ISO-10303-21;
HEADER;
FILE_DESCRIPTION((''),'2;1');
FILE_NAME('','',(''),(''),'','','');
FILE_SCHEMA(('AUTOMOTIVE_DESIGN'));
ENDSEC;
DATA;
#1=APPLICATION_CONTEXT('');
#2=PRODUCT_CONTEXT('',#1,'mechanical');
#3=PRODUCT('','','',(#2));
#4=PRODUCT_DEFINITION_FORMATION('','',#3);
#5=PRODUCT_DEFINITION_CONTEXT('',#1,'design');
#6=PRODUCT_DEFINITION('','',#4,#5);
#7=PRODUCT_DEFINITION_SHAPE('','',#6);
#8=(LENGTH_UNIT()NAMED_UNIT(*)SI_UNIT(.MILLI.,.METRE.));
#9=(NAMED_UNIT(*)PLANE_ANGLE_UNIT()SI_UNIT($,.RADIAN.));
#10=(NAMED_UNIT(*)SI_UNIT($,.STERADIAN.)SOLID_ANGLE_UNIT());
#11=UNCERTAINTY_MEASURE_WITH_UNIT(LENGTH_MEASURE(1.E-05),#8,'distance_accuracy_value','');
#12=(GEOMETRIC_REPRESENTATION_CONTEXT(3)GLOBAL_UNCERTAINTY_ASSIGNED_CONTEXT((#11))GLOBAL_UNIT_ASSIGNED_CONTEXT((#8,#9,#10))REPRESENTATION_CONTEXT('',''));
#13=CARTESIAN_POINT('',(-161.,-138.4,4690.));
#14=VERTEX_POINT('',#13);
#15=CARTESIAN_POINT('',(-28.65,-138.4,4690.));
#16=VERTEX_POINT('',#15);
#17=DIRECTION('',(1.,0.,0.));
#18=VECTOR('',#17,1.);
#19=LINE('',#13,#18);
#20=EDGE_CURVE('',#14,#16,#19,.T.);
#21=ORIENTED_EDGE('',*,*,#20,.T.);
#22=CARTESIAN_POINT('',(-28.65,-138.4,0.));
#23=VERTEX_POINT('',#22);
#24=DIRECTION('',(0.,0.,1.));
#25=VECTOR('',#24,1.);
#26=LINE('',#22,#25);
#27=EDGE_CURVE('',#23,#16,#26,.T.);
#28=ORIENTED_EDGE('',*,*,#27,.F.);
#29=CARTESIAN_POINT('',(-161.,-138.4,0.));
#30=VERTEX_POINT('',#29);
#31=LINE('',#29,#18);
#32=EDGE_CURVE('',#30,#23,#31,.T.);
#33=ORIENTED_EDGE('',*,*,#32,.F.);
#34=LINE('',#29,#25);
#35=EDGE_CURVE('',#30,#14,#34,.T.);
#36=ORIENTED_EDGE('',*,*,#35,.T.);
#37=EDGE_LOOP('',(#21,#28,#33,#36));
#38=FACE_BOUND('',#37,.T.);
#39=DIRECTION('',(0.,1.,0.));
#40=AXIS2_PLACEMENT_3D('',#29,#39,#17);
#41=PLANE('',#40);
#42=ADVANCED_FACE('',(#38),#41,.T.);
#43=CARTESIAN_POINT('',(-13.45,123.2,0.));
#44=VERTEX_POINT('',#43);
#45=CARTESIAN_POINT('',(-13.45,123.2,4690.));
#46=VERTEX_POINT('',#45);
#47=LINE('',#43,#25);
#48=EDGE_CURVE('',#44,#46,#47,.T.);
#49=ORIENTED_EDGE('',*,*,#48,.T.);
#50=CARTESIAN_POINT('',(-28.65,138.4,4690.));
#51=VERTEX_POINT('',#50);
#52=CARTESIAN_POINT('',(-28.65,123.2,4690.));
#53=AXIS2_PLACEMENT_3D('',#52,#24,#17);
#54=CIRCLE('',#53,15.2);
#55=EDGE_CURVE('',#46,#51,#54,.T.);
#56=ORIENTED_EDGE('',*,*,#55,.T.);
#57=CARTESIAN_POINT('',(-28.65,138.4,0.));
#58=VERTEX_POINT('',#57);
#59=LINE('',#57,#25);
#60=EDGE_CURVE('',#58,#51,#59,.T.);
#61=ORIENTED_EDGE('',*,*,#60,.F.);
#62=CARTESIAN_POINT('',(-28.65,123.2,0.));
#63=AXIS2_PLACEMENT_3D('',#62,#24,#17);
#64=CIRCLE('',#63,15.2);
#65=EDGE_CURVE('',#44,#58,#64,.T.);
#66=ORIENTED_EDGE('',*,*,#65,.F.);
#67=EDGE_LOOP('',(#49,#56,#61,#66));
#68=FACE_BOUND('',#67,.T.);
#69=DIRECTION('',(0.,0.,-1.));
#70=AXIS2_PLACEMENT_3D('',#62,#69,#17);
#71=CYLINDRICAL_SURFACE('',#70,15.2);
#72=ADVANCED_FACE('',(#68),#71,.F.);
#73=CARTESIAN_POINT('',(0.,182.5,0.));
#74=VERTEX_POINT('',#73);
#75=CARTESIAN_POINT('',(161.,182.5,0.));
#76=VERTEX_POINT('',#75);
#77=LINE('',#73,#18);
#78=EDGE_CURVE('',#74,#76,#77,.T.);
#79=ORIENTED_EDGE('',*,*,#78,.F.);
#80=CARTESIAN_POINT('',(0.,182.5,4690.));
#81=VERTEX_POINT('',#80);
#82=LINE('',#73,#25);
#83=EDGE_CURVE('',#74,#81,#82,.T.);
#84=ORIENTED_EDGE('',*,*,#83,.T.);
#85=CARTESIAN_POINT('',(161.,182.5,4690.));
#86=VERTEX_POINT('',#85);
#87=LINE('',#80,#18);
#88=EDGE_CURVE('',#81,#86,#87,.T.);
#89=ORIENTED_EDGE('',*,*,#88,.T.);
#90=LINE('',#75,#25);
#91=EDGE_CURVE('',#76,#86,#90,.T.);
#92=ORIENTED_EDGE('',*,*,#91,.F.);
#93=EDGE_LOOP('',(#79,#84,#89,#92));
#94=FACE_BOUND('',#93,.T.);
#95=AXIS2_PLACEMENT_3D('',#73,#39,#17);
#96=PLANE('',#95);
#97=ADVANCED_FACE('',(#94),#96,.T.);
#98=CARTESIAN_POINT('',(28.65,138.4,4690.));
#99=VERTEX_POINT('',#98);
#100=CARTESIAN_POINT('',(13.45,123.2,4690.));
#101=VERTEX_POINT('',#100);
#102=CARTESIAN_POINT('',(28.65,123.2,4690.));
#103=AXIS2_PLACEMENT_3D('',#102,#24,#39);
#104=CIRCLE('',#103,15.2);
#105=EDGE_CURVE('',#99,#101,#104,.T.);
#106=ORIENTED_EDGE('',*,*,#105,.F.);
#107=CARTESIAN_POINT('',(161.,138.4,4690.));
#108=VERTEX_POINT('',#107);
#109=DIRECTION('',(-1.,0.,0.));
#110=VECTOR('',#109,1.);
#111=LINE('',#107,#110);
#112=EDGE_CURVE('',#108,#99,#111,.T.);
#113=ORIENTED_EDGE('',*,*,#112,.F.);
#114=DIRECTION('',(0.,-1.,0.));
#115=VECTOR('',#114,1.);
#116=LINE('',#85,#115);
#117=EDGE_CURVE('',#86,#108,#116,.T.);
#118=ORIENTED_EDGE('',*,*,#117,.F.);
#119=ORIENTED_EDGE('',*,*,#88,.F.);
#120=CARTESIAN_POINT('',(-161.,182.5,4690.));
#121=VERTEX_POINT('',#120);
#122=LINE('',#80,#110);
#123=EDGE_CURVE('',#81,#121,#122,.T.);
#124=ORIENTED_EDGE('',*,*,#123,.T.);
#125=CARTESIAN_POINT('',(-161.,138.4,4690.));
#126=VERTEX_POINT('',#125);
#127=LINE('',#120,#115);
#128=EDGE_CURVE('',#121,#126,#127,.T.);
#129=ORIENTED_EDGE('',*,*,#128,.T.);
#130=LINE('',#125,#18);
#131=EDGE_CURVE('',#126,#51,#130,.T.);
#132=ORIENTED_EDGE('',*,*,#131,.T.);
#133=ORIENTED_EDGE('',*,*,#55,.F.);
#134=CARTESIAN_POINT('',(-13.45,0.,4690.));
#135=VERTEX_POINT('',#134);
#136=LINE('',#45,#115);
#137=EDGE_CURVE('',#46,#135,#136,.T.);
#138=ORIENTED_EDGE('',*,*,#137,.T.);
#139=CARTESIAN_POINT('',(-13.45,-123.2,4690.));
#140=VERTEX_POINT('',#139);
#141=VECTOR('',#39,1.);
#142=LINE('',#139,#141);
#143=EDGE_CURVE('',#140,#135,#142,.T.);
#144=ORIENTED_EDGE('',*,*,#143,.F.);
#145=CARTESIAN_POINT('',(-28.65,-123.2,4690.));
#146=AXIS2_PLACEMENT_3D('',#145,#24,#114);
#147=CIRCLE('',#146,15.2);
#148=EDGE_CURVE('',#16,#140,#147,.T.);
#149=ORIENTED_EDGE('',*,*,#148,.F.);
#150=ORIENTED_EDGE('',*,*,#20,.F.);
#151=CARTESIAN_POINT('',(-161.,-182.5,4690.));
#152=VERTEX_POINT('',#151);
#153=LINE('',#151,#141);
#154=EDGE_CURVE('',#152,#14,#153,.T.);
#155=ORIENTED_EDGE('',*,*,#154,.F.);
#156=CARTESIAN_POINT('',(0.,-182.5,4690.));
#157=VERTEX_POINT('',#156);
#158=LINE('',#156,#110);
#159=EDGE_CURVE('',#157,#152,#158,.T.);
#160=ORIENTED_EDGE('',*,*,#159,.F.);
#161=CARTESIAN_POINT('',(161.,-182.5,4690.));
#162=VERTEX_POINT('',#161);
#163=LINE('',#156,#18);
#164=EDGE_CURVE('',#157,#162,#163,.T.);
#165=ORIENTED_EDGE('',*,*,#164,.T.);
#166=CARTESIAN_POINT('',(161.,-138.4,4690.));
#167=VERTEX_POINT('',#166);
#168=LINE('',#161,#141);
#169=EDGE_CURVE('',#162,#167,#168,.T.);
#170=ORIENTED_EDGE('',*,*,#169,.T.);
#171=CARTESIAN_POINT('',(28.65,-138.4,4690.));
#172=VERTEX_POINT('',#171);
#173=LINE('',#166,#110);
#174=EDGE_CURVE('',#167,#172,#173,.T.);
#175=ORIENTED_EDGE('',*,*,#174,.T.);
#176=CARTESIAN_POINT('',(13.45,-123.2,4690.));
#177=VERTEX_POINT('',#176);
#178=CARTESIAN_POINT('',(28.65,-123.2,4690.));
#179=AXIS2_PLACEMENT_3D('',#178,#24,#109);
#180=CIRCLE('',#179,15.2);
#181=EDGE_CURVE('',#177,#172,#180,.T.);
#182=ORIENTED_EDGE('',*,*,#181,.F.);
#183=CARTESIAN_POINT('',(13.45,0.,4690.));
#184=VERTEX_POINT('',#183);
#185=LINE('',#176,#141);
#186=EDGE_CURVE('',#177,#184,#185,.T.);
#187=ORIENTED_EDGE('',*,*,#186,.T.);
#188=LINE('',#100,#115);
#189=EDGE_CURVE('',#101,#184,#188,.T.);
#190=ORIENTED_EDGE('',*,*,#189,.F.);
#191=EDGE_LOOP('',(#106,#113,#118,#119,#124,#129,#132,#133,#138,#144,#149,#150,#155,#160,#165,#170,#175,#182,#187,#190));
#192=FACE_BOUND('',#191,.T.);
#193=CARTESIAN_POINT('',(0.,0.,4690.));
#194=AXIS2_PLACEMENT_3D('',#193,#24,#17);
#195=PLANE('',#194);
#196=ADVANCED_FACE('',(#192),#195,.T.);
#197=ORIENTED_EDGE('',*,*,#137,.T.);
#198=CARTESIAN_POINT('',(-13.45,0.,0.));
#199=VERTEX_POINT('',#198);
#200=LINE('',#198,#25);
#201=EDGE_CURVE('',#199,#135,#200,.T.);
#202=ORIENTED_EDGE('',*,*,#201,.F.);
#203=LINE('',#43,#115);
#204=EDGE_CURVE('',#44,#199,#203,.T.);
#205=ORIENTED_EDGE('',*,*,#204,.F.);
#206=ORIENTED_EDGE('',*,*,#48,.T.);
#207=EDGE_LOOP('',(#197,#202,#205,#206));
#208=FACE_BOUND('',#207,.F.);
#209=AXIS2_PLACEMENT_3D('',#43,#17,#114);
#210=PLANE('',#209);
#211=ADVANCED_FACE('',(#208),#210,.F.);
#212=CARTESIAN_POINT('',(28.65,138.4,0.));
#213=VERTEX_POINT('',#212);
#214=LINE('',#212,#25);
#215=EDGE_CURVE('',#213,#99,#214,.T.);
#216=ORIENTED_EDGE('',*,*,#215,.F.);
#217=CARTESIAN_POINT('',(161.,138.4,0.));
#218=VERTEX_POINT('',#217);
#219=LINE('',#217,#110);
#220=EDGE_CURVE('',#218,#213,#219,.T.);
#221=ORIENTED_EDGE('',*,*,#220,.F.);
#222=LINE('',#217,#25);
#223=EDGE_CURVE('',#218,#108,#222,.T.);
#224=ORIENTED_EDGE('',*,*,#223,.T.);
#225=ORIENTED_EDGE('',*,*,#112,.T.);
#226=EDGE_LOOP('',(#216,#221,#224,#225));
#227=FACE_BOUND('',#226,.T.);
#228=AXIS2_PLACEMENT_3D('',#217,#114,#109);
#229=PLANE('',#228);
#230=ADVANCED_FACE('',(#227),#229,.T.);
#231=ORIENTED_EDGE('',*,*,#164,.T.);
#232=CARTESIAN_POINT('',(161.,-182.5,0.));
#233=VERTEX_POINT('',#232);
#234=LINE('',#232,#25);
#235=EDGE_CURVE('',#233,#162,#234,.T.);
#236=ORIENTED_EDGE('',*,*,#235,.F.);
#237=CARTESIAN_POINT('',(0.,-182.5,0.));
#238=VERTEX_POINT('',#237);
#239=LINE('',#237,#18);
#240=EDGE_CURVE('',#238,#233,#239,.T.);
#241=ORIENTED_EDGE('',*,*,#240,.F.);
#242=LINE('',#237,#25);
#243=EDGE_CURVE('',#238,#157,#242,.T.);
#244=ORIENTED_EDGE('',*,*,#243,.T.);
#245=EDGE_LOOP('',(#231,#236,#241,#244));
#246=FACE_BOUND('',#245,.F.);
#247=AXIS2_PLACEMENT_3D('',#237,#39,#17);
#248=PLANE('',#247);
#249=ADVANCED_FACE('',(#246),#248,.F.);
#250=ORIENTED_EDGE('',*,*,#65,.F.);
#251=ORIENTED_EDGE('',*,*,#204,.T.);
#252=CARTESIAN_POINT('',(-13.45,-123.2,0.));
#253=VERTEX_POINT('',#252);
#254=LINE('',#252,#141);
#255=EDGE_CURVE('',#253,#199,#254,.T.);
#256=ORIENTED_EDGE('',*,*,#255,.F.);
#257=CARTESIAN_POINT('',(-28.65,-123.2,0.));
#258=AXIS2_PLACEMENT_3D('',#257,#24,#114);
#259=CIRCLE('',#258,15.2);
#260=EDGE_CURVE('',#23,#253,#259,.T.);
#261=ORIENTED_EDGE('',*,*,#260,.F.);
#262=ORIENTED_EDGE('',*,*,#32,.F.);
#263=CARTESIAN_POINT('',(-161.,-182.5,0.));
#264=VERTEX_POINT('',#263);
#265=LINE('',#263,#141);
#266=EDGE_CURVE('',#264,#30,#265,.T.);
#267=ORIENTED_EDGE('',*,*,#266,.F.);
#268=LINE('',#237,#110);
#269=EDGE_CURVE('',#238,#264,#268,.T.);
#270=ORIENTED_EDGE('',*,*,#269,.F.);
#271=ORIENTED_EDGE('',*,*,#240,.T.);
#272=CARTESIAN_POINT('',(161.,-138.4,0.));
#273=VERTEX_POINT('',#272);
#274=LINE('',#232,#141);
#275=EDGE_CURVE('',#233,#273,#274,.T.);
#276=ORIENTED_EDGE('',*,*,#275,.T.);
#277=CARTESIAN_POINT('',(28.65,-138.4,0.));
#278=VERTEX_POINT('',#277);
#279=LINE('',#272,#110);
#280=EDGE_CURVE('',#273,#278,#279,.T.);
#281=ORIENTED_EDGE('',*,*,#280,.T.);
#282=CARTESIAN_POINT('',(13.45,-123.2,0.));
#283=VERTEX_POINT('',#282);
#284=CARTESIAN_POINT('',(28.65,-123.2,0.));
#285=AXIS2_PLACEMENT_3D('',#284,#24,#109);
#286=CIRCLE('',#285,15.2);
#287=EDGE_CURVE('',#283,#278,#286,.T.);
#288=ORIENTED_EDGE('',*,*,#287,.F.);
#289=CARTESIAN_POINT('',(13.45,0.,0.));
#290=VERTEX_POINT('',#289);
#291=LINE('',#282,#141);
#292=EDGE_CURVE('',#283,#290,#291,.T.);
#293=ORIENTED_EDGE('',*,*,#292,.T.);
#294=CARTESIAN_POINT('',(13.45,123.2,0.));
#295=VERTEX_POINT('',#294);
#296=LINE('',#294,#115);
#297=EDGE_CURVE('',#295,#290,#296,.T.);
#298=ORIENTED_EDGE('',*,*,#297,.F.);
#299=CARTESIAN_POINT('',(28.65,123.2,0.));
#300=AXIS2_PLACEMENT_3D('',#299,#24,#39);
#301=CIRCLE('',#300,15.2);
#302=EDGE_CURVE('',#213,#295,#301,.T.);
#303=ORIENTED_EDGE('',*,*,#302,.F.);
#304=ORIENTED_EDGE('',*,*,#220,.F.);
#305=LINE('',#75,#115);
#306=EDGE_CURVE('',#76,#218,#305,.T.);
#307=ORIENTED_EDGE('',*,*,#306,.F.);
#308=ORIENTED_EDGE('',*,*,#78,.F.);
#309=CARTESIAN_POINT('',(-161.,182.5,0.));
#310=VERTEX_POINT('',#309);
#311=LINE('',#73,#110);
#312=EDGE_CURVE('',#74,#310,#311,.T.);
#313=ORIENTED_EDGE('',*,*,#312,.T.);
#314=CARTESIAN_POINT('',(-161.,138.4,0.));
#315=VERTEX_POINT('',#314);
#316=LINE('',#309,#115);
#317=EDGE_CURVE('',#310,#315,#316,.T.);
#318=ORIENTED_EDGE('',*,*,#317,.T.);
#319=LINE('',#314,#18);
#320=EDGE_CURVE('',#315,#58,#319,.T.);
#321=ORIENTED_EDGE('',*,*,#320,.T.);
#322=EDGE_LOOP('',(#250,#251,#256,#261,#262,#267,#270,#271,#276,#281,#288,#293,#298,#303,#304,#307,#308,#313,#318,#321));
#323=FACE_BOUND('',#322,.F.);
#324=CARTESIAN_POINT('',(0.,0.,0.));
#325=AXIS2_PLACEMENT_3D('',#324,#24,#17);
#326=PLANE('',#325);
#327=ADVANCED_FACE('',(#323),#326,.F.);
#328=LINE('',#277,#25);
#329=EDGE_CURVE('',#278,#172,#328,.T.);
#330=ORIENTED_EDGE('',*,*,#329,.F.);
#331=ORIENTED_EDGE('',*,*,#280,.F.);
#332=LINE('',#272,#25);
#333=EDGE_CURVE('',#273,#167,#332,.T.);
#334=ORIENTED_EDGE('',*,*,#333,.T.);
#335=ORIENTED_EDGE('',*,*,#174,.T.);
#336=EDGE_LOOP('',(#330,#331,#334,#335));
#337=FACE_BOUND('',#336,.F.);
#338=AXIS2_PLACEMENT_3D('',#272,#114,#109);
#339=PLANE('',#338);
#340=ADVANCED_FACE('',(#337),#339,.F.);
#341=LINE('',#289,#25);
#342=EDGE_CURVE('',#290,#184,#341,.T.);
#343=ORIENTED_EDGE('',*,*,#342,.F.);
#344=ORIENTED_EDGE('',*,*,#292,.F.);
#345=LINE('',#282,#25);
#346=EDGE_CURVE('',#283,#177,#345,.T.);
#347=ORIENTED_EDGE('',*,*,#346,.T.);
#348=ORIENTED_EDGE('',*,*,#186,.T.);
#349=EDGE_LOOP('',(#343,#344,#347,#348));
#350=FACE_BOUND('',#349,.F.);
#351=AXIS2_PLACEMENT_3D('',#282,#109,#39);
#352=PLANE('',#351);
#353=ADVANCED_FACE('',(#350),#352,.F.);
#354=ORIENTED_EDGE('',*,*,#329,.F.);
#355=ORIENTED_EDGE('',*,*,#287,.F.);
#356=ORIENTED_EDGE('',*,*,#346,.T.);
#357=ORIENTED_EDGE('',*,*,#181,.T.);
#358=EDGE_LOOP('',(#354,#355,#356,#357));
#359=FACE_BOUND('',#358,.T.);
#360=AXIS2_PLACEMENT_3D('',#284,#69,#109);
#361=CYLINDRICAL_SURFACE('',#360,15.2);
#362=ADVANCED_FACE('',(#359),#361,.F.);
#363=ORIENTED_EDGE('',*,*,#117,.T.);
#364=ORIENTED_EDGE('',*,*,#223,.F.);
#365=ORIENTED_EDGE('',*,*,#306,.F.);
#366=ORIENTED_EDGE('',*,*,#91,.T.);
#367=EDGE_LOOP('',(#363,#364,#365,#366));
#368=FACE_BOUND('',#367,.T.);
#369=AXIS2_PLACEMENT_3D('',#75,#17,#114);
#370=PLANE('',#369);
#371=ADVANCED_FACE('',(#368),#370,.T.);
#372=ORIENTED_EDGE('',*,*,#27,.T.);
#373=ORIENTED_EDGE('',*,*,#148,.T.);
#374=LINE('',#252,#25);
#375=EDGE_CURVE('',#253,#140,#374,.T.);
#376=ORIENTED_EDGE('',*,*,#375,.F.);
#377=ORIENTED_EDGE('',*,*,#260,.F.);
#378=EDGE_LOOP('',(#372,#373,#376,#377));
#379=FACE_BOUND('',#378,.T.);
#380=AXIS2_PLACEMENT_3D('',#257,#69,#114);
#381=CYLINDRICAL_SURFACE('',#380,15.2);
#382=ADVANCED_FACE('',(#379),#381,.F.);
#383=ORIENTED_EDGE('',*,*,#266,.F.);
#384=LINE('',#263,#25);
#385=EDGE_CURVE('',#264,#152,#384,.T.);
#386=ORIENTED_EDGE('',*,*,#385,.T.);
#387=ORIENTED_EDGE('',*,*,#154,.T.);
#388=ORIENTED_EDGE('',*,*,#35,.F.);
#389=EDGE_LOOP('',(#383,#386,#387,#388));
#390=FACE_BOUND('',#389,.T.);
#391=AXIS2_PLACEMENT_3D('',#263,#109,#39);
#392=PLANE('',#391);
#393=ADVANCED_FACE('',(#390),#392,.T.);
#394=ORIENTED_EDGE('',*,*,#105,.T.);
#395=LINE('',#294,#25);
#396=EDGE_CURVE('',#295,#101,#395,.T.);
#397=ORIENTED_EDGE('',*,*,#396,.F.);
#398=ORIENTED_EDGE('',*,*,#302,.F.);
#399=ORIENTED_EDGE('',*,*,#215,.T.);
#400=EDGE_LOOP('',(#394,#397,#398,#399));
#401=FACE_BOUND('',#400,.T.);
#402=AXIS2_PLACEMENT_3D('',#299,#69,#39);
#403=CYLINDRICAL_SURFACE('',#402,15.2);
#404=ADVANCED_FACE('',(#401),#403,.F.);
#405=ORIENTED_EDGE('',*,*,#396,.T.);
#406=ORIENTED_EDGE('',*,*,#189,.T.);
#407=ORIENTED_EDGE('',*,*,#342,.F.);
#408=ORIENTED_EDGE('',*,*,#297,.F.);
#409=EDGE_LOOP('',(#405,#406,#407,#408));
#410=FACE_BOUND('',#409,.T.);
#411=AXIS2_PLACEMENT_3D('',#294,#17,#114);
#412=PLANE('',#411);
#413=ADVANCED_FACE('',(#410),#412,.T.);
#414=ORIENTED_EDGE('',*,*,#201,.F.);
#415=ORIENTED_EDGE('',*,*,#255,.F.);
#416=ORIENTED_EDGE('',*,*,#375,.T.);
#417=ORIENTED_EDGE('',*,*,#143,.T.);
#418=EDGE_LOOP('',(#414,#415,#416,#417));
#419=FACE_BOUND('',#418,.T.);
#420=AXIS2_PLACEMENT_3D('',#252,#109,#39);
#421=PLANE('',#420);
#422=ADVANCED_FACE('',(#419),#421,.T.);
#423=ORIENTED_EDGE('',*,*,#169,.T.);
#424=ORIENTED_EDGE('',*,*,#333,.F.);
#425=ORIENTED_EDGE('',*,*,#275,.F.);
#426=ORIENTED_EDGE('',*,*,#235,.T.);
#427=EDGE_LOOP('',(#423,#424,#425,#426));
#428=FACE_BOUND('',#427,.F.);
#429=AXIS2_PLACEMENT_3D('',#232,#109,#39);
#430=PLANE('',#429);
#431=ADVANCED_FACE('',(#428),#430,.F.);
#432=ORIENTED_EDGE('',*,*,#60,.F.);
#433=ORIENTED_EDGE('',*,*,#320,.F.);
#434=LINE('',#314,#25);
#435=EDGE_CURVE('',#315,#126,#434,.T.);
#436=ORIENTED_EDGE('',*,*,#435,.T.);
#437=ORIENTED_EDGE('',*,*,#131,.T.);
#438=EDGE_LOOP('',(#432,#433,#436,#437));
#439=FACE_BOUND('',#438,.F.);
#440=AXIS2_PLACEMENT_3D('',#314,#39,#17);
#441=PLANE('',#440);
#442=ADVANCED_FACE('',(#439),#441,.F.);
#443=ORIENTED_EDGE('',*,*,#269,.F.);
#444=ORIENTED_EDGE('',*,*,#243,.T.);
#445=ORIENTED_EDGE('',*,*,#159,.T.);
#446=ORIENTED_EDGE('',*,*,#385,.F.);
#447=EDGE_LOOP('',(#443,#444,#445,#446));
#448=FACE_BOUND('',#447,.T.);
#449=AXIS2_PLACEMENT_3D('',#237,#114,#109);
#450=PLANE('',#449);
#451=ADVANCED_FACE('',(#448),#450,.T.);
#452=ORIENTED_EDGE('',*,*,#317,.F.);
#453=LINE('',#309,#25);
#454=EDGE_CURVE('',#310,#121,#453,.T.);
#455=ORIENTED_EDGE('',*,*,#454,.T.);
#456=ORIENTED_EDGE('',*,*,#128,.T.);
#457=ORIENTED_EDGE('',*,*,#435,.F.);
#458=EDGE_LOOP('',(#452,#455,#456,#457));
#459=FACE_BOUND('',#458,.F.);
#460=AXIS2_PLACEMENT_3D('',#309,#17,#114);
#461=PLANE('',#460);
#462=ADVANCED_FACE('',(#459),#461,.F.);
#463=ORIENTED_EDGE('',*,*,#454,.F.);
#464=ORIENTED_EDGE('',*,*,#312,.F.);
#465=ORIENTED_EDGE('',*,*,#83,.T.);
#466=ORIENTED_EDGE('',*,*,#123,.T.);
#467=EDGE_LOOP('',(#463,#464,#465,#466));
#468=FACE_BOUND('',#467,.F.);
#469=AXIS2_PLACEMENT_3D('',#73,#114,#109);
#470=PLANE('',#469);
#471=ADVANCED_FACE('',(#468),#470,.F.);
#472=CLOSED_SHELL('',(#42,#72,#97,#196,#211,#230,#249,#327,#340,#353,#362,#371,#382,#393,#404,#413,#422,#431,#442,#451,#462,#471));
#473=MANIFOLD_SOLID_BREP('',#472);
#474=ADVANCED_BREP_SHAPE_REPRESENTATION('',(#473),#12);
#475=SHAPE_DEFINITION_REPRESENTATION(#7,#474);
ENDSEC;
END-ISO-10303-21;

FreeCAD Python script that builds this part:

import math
import FreeCAD as App
import Part
import Sketcher

doc = App.newDocument("Part")
params = doc.addObject("Spreadsheet::Sheet", "Params")
for row, (alias, value) in enumerate([
    ("sketch1_radius", "15.2 mm"),
    ("sketch1_height", "44.1 mm"),
    ("pad1_length", "4690 mm"),
], start=1):
    params.set(f"A{row}", alias)
    params.set(f"B{row}", "=" + value)
    params.setAlias(f"B{row}", alias)

body = doc.addObject("PartDesign::Body", "Body")

sketch1 = body.newObject("Sketcher::SketchObject", "Sketch")
sketch1.AttachmentSupport = (doc.getObject("XY_Plane"), [""])
sketch1.MapMode = "FlatFace"
sketch1.addGeometry([
    Part.LineSegment(App.Vector(-161, -138.4, 0), App.Vector(-161, -182.5, 0)),
    Part.LineSegment(App.Vector(-161, -182.5, 0), App.Vector(161, -182.5, 0)),
    Part.LineSegment(App.Vector(161, -182.5, 0), App.Vector(161, -138.4, 0)),
    Part.LineSegment(App.Vector(161, -138.4, 0), App.Vector(28.65, -138.4, 0)),
    Part.ArcOfCircle(Part.Circle(App.Vector(28.65, -123.2, 0), App.Vector(0, 0, 1), 15.2), math.radians(180), math.radians(270)),
    Part.LineSegment(App.Vector(13.45, -123.2, 0), App.Vector(13.45, 123.2, 0)),
    Part.ArcOfCircle(Part.Circle(App.Vector(28.65, 123.2, 0), App.Vector(0, 0, 1), 15.2), math.radians(90), math.radians(180)),
    Part.LineSegment(App.Vector(28.65, 138.4, 0), App.Vector(161, 138.4, 0)),
    Part.LineSegment(App.Vector(161, 138.4, 0), App.Vector(161, 182.5, 0)),
    Part.LineSegment(App.Vector(161, 182.5, 0), App.Vector(-161, 182.5, 0)),
    Part.LineSegment(App.Vector(-161, 182.5, 0), App.Vector(-161, 138.4, 0)),
    Part.LineSegment(App.Vector(-161, 138.4, 0), App.Vector(-28.65, 138.4, 0)),
    Part.ArcOfCircle(Part.Circle(App.Vector(-28.65, 123.2, 0), App.Vector(0, 0, 1), 15.2), math.radians(0), math.radians(90)),
    Part.LineSegment(App.Vector(-13.45, 123.2, 0), App.Vector(-13.45, -123.2, 0)),
    Part.ArcOfCircle(Part.Circle(App.Vector(-28.65, -123.2, 0), App.Vector(0, 0, 1), 15.2), math.radians(-90), math.radians(0)),
    Part.LineSegment(App.Vector(-28.65, -138.4, 0), App.Vector(-161, -138.4, 0)),
], False)
sketch1.addConstraint([
    Sketcher.Constraint("Coincident", 0, 2, 1, 1),
    Sketcher.Constraint("Coincident", 1, 2, 2, 1),
    Sketcher.Constraint("Coincident", 2, 2, 3, 1),
    Sketcher.Constraint("Tangent", 3, 2, 4, 2),
    Sketcher.Constraint("Tangent", 4, 1, 5, 1),
    Sketcher.Constraint("Tangent", 5, 2, 6, 2),
    Sketcher.Constraint("Tangent", 6, 1, 7, 1),
    Sketcher.Constraint("Coincident", 7, 2, 8, 1),
    Sketcher.Constraint("Coincident", 8, 2, 9, 1),
    Sketcher.Constraint("Coincident", 9, 2, 10, 1),
    Sketcher.Constraint("Coincident", 10, 2, 11, 1),
    Sketcher.Constraint("Tangent", 11, 2, 12, 2),
    Sketcher.Constraint("Tangent", 12, 1, 13, 1),
    Sketcher.Constraint("Tangent", 13, 2, 14, 2),
    Sketcher.Constraint("Tangent", 14, 1, 15, 1),
    Sketcher.Constraint("Coincident", 15, 2, 0, 1),
    Sketcher.Constraint("Vertical", 0),
    Sketcher.Constraint("Horizontal", 1),
    Sketcher.Constraint("Vertical", 2),
    Sketcher.Constraint("Horizontal", 3),
    Sketcher.Constraint("Vertical", 5),
    Sketcher.Constraint("Horizontal", 7),
    Sketcher.Constraint("Vertical", 8),
    Sketcher.Constraint("Horizontal", 9),
    Sketcher.Constraint("Vertical", 10),
    Sketcher.Constraint("Horizontal", 11),
    Sketcher.Constraint("Vertical", 13),
    Sketcher.Constraint("Horizontal", 15),
    Sketcher.Constraint("Equal", 4, 6),
    Sketcher.Constraint("Equal", 6, 12),
    Sketcher.Constraint("Equal", 12, 14),
    Sketcher.Constraint("Symmetric", 4, 3, 12, 3, -1, 1),
    Sketcher.Constraint("Symmetric", 0, 2, 8, 2, -1, 1),
    Sketcher.Constraint("Symmetric", 7, 2, 10, 2, -2),
    Sketcher.Constraint("Symmetric", 2, 2, 15, 2, -2),
    Sketcher.Constraint("Radius", 4, 15.2),
    Sketcher.Constraint("DistanceY", 0, 2, 0, 1, 44.1),
    Sketcher.Constraint("DistanceX", 0, 2, -1, 1, 161.0),
    Sketcher.Constraint("DistanceY", 0, 2, -1, 1, 182.5),
    Sketcher.Constraint("DistanceX", -1, 1, 4, 1, 13.45),
])
sketch1.setExpression("Constraints[35]", "Params.sketch1_radius")
sketch1.setExpression("Constraints[36]", "Params.sketch1_height")
pad1 = body.newObject("PartDesign::Pad", "Pad")
pad1.Profile = sketch1
pad1.setExpression("Length", "Params.pad1_length")

doc.recompute()
